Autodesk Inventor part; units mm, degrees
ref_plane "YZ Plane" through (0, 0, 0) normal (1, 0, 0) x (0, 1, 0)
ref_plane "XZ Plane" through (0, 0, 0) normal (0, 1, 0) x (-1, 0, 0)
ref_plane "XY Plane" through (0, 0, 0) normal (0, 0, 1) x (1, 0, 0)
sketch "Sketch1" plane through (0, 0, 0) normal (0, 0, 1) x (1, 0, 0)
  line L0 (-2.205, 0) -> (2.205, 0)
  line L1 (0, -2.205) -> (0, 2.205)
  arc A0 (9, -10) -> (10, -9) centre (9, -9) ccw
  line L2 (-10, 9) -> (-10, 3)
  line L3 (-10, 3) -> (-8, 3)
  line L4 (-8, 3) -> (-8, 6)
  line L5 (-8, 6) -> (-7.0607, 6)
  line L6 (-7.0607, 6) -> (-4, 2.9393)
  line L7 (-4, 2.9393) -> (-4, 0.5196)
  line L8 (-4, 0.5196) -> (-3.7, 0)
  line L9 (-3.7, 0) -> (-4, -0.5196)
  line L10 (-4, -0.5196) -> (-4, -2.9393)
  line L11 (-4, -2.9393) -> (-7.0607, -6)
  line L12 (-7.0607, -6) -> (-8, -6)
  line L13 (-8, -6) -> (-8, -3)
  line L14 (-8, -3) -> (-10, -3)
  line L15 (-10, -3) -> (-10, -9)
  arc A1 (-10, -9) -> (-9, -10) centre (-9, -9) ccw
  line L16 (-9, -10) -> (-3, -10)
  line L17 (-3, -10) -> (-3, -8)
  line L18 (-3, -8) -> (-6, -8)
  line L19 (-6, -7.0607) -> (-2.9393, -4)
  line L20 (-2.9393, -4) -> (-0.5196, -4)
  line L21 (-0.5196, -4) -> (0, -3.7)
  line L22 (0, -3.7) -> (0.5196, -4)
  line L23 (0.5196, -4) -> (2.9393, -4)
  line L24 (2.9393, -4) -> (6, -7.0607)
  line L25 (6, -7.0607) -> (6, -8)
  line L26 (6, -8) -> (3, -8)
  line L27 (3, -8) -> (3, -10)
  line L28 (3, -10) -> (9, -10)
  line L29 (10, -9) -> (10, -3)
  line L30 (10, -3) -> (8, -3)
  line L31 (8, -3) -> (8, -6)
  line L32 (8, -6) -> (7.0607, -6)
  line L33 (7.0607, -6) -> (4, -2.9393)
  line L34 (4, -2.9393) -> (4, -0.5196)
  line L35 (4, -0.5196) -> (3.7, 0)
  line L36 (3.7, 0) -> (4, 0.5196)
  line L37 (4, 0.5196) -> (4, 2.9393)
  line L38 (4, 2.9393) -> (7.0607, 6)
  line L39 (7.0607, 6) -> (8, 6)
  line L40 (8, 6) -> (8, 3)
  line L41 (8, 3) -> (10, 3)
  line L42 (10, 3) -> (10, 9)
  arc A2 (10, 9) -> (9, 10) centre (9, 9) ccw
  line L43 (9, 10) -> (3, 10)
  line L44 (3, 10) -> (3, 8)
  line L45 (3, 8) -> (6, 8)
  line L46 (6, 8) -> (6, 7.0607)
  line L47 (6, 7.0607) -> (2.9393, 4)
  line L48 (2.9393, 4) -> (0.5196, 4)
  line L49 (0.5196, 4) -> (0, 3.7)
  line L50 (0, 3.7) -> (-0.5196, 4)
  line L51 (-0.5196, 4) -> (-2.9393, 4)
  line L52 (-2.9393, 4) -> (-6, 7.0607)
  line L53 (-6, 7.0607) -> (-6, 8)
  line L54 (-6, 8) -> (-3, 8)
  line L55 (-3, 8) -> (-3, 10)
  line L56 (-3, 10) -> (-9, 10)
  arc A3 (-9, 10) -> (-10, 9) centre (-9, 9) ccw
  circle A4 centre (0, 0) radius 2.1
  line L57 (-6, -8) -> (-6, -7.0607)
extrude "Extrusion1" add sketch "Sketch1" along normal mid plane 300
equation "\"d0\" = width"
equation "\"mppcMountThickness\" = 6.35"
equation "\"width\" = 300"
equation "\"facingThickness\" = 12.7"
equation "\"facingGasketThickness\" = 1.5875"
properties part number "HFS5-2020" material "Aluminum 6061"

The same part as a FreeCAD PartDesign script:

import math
import FreeCAD as App
import Part
import Sketcher

V = App.Vector
Q = App.Units.Quantity

doc = App.newDocument("Part")
params = doc.addObject("Spreadsheet::Sheet", "Params")
for row, (alias, value) in enumerate([
    ("sketch1_radius", "1 mm"),
    ("sketch1_diameter", "4.2 mm"),
    ("sketch1_width", "6 mm"),
    ("sketch1_width2", "2 mm"),
    ("sketch1_width3", "3 mm"),
    ("pad1_length", "300 mm"),
], start=1):
    params.set(f"A{row}", alias)
    params.set(f"B{row}", "=" + value)
    params.setAlias(f"B{row}", alias)

body = doc.addObject("PartDesign::Body", "Body")

# Sketch on XY plane
sketch1 = doc.addObject("Sketcher::SketchObject", "Sketch")
body.addObject(sketch1)
sketch1.AttachmentSupport = (doc.XY_Plane, [""])
sketch1.MapMode = "FlatFace"
sketch1.addGeometry(Part.LineSegment(V(3, -10, 0), V(9, -10, 0)), False)
sketch1.addGeometry(Part.ArcOfCircle(Part.Circle(V(9, -9, 0), V(0, 0, 1), 1), math.radians(-90), math.radians(0)), False)
sketch1.addGeometry(Part.LineSegment(V(10, -9, 0), V(10, -3, 0)), False)
sketch1.addGeometry(Part.LineSegment(V(10, -3, 0), V(8, -3, 0)), False)
sketch1.addGeometry(Part.LineSegment(V(8, -3, 0), V(8, -6, 0)), False)
sketch1.addGeometry(Part.LineSegment(V(8, -6, 0), V(7.1, -6, 0)), False)
sketch1.addGeometry(Part.LineSegment(V(7.1, -6, 0), V(4, -2.9, 0)), False)
sketch1.addGeometry(Part.LineSegment(V(4, -2.9, 0), V(4, -0.5, 0)), False)
sketch1.addGeometry(Part.LineSegment(V(4, -0.5, 0), V(3.7, 0, 0)), False)
sketch1.addGeometry(Part.LineSegment(V(3.7, 0, 0), V(4, 0.5, 0)), False)
sketch1.addGeometry(Part.LineSegment(V(4, 0.5, 0), V(4, 2.9, 0)), False)
sketch1.addGeometry(Part.LineSegment(V(4, 2.9, 0), V(7.1, 6, 0)), False)
sketch1.addGeometry(Part.LineSegment(V(7.1, 6, 0), V(8, 6, 0)), False)
sketch1.addGeometry(Part.LineSegment(V(8, 6, 0), V(8, 3, 0)), False)
sketch1.addGeometry(Part.LineSegment(V(8, 3, 0), V(10, 3, 0)), False)
sketch1.addGeometry(Part.LineSegment(V(10, 3, 0), V(10, 9, 0)), False)
sketch1.addGeometry(Part.ArcOfCircle(Part.Circle(V(9, 9, 0), V(0, 0, 1), 1), math.radians(0), math.radians(90)), False)
sketch1.addGeometry(Part.LineSegment(V(9, 10, 0), V(3, 10, 0)), False)
sketch1.addGeometry(Part.LineSegment(V(3, 10, 0), V(3, 8, 0)), False)
sketch1.addGeometry(Part.LineSegment(V(3, 8, 0), V(6, 8, 0)), False)
sketch1.addGeometry(Part.LineSegment(V(6, 8, 0), V(6, 7.1, 0)), False)
sketch1.addGeometry(Part.LineSegment(V(6, 7.1, 0), V(2.9, 4, 0)), False)
sketch1.addGeometry(Part.LineSegment(V(2.9, 4, 0), V(0.5, 4, 0)), False)
sketch1.addGeometry(Part.LineSegment(V(0.5, 4, 0), V(0, 3.7, 0)), False)
sketch1.addGeometry(Part.LineSegment(V(0, 3.7, 0), V(-0.5, 4, 0)), False)
sketch1.addGeometry(Part.LineSegment(V(-0.5, 4, 0), V(-2.9, 4, 0)), False)
sketch1.addGeometry(Part.LineSegment(V(-2.9, 4, 0), V(-6, 7.1, 0)), False)
sketch1.addGeometry(Part.LineSegment(V(-6, 7.1, 0), V(-6, 8, 0)), False)
sketch1.addGeometry(Part.LineSegment(V(-6, 8, 0), V(-3, 8, 0)), False)
sketch1.addGeometry(Part.LineSegment(V(-3, 8, 0), V(-3, 10, 0)), False)
sketch1.addGeometry(Part.LineSegment(V(-3, 10, 0), V(-9, 10, 0)), False)
sketch1.addGeometry(Part.ArcOfCircle(Part.Circle(V(-9, 9, 0), V(0, 0, 1), 1), math.radians(90), math.radians(180)), False)
sketch1.addGeometry(Part.LineSegment(V(-10, 9, 0), V(-10, 3, 0)), False)
sketch1.addGeometry(Part.LineSegment(V(-10, 3, 0), V(-8, 3, 0)), False)
sketch1.addGeometry(Part.LineSegment(V(-8, 3, 0), V(-8, 6, 0)), False)
sketch1.addGeometry(Part.LineSegment(V(-8, 6, 0), V(-7.1, 6, 0)), False)
sketch1.addGeometry(Part.LineSegment(V(-7.1, 6, 0), V(-4, 2.9, 0)), False)
sketch1.addGeometry(Part.LineSegment(V(-4, 2.9, 0), V(-4, 0.5, 0)), False)
sketch1.addGeometry(Part.LineSegment(V(-4, 0.5, 0), V(-3.7, 0, 0)), False)
sketch1.addGeometry(Part.LineSegment(V(-3.7, 0, 0), V(-4, -0.5, 0)), False)
sketch1.addGeometry(Part.LineSegment(V(-4, -0.5, 0), V(-4, -2.9, 0)), False)
sketch1.addGeometry(Part.LineSegment(V(-4, -2.9, 0), V(-7.1, -6, 0)), False)
sketch1.addGeometry(Part.LineSegment(V(-7.1, -6, 0), V(-8, -6, 0)), False)
sketch1.addGeometry(Part.LineSegment(V(-8, -6, 0), V(-8, -3, 0)), False)
sketch1.addGeometry(Part.LineSegment(V(-8, -3, 0), V(-10, -3, 0)), False)
sketch1.addGeometry(Part.LineSegment(V(-10, -3, 0), V(-10, -9, 0)), False)
sketch1.addGeometry(Part.ArcOfCircle(Part.Circle(V(-9, -9, 0), V(0, 0, 1), 1), math.radians(180), math.radians(270)), False)
sketch1.addGeometry(Part.LineSegment(V(-9, -10, 0), V(-3, -10, 0)), False)
sketch1.addGeometry(Part.LineSegment(V(-3, -10, 0), V(-3, -8, 0)), False)
sketch1.addGeometry(Part.LineSegment(V(-3, -8, 0), V(-6, -8, 0)), False)
sketch1.addGeometry(Part.LineSegment(V(-6, -8, 0), V(-6, -7.1, 0)), False)
sketch1.addGeometry(Part.LineSegment(V(-6, -7.1, 0), V(-2.9, -4, 0)), False)
sketch1.addGeometry(Part.LineSegment(V(-2.9, -4, 0), V(-0.5, -4, 0)), False)
sketch1.addGeometry(Part.LineSegment(V(-0.5, -4, 0), V(0, -3.7, 0)), False)
sketch1.addGeometry(Part.LineSegment(V(0, -3.7, 0), V(0.5, -4, 0)), False)
sketch1.addGeometry(Part.LineSegment(V(0.5, -4, 0), V(2.9, -4, 0)), False)
sketch1.addGeometry(Part.LineSegment(V(2.9, -4, 0), V(6, -7.1, 0)), False)
sketch1.addGeometry(Part.LineSegment(V(6, -7.1, 0), V(6, -8, 0)), False)
sketch1.addGeometry(Part.LineSegment(V(6, -8, 0), V(3, -8, 0)), False)
sketch1.addGeometry(Part.LineSegment(V(3, -8, 0), V(3, -10, 0)), False)
sketch1.addGeometry(Part.Circle(V(0, 0, 0), V(0, 0, 1), 2.1), False)
sketch1.addConstraint(Sketcher.Constraint("Tangent", 0, 2, 1, 1))
sketch1.addConstraint(Sketcher.Constraint("Tangent", 1, 2, 2, 1))
sketch1.addConstraint(Sketcher.Constraint("Coincident", 2, 2, 3, 1))
sketch1.addConstraint(Sketcher.Constraint("Coincident", 3, 2, 4, 1))
sketch1.addConstraint(Sketcher.Constraint("Coincident", 4, 2, 5, 1))
sketch1.addConstraint(Sketcher.Constraint("Coincident", 5, 2, 6, 1))
sketch1.addConstraint(Sketcher.Constraint("Coincident", 6, 2, 7, 1))
sketch1.addConstraint(Sketcher.Constraint("Coincident", 7, 2, 8, 1))
sketch1.addConstraint(Sketcher.Constraint("Coincident", 8, 2, 9, 1))
sketch1.addConstraint(Sketcher.Constraint("Coincident", 9, 2, 10, 1))
sketch1.addConstraint(Sketcher.Constraint("Coincident", 10, 2, 11, 1))
sketch1.addConstraint(Sketcher.Constraint("Coincident", 11, 2, 12, 1))
sketch1.addConstraint(Sketcher.Constraint("Coincident", 12, 2, 13, 1))
sketch1.addConstraint(Sketcher.Constraint("Coincident", 13, 2, 14, 1))
sketch1.addConstraint(Sketcher.Constraint("Coincident", 14, 2, 15, 1))
sketch1.addConstraint(Sketcher.Constraint("Tangent", 15, 2, 16, 1))
sketch1.addConstraint(Sketcher.Constraint("Tangent", 16, 2, 17, 1))
sketch1.addConstraint(Sketcher.Constraint("Coincident", 17, 2, 18, 1))
sketch1.addConstraint(Sketcher.Constraint("Coincident", 18, 2, 19, 1))
sketch1.addConstraint(Sketcher.Constraint("Coincident", 19, 2, 20, 1))
sketch1.addConstraint(Sketcher.Constraint("Coincident", 20, 2, 21, 1))
sketch1.addConstraint(Sketcher.Constraint("Coincident", 21, 2, 22, 1))
sketch1.addConstraint(Sketcher.Constraint("Coincident", 22, 2, 23, 1))
sketch1.addConstraint(Sketcher.Constraint("Coincident", 23, 2, 24, 1))
sketch1.addConstraint(Sketcher.Constraint("Coincident", 24, 2, 25, 1))
sketch1.addConstraint(Sketcher.Constraint("Coincident", 25, 2, 26, 1))
sketch1.addConstraint(Sketcher.Constraint("Coincident", 26, 2, 27, 1))
sketch1.addConstraint(Sketcher.Constraint("Coincident", 27, 2, 28, 1))
sketch1.addConstraint(Sketcher.Constraint("Coincident", 28, 2, 29, 1))
sketch1.addConstraint(Sketcher.Constraint("Coincident", 29, 2, 30, 1))
sketch1.addConstraint(Sketcher.Constraint("Tangent", 30, 2, 31, 1))
sketch1.addConstraint(Sketcher.Constraint("Tangent", 31, 2, 32, 1))
sketch1.addConstraint(Sketcher.Constraint("Coincident", 32, 2, 33, 1))
sketch1.addConstraint(Sketcher.Constraint("Coincident", 33, 2, 34, 1))
sketch1.addConstraint(Sketcher.Constraint("Coincident", 34, 2, 35, 1))
sketch1.addConstraint(Sketcher.Constraint("Coincident", 35, 2, 36, 1))
sketch1.addConstraint(Sketcher.Constraint("Coincident", 36, 2, 37, 1))
sketch1.addConstraint(Sketcher.Constraint("Coincident", 37, 2, 38, 1))
sketch1.addConstraint(Sketcher.Constraint("Coincident", 38, 2, 39, 1))
sketch1.addConstraint(Sketcher.Constraint("Coincident", 39, 2, 40, 1))
sketch1.addConstraint(Sketcher.Constraint("Coincident", 40, 2, 41, 1))
sketch1.addConstraint(Sketcher.Constraint("Coincident", 41, 2, 42, 1))
sketch1.addConstraint(Sketcher.Constraint("Coincident", 42, 2, 43, 1))
sketch1.addConstraint(Sketcher.Constraint("Coincident", 43, 2, 44, 1))
sketch1.addConstraint(Sketcher.Constraint("Coincident", 44, 2, 45, 1))
sketch1.addConstraint(Sketcher.Constraint("Tangent", 45, 2, 46, 1))
sketch1.addConstraint(Sketcher.Constraint("Tangent", 46, 2, 47, 1))
sketch1.addConstraint(Sketcher.Constraint("Coincident", 47, 2, 48, 1))
sketch1.addConstraint(Sketcher.Constraint("Coincident", 48, 2, 49, 1))
sketch1.addConstraint(Sketcher.Constraint("Coincident", 49, 2, 50, 1))
sketch1.addConstraint(Sketcher.Constraint("Coincident", 50, 2, 51, 1))
sketch1.addConstraint(Sketcher.Constraint("Coincident", 51, 2, 52, 1))
sketch1.addConstraint(Sketcher.Constraint("Coincident", 52, 2, 53, 1))
sketch1.addConstraint(Sketcher.Constraint("Coincident", 53, 2, 54, 1))
sketch1.addConstraint(Sketcher.Constraint("Coincident", 54, 2, 55, 1))
sketch1.addConstraint(Sketcher.Constraint("Coincident", 55, 2, 56, 1))
sketch1.addConstraint(Sketcher.Constraint("Coincident", 56, 2, 57, 1))
sketch1.addConstraint(Sketcher.Constraint("Coincident", 57, 2, 58, 1))
sketch1.addConstraint(Sketcher.Constraint("Coincident", 58, 2, 59, 1))
sketch1.addConstraint(Sketcher.Constraint("Coincident", 59, 2, 0, 1))
sketch1.addConstraint(Sketcher.Constraint("Horizontal", 0))
sketch1.addConstraint(Sketcher.Constraint("Vertical", 2))
sketch1.addConstraint(Sketcher.Constraint("Horizontal", 3))
sketch1.addConstraint(Sketcher.Constraint("Vertical", 4))
sketch1.addConstraint(Sketcher.Constraint("Horizontal", 5))
sketch1.addConstraint(Sketcher.Constraint("Vertical", 7))
sketch1.addConstraint(Sketcher.Constraint("Vertical", 10))
sketch1.addConstraint(Sketcher.Constraint("Horizontal", 12))
sketch1.addConstraint(Sketcher.Constraint("Vertical", 13))
sketch1.addConstraint(Sketcher.Constraint("Horizontal", 14))
sketch1.addConstraint(Sketcher.Constraint("Vertical", 15))
sketch1.addConstraint(Sketcher.Constraint("Horizontal", 17))
sketch1.addConstraint(Sketcher.Constraint("Vertical", 18))
sketch1.addConstraint(Sketcher.Constraint("Horizontal", 19))
sketch1.addConstraint(Sketcher.Constraint("Vertical", 20))
sketch1.addConstraint(Sketcher.Constraint("Horizontal", 22))
sketch1.addConstraint(Sketcher.Constraint("Horizontal", 25))
sketch1.addConstraint(Sketcher.Constraint("Vertical", 27))
sketch1.addConstraint(Sketcher.Constraint("Horizontal", 28))
sketch1.addConstraint(Sketcher.Constraint("Vertical", 29))
sketch1.addConstraint(Sketcher.Constraint("Horizontal", 30))
sketch1.addConstraint(Sketcher.Constraint("Vertical", 32))
sketch1.addConstraint(Sketcher.Constraint("Horizontal", 33))
sketch1.addConstraint(Sketcher.Constraint("Vertical", 34))
sketch1.addConstraint(Sketcher.Constraint("Horizontal", 35))
sketch1.addConstraint(Sketcher.Constraint("Vertical", 37))
sketch1.addConstraint(Sketcher.Constraint("Vertical", 40))
sketch1.addConstraint(Sketcher.Constraint("Horizontal", 42))
sketch1.addConstraint(Sketcher.Constraint("Vertical", 43))
sketch1.addConstraint(Sketcher.Constraint("Horizontal", 44))
sketch1.addConstraint(Sketcher.Constraint("Vertical", 45))
sketch1.addConstraint(Sketcher.Constraint("Horizontal", 47))
sketch1.addConstraint(Sketcher.Constraint("Vertical", 48))
sketch1.addConstraint(Sketcher.Constraint("Horizontal", 49))
sketch1.addConstraint(Sketcher.Constraint("Vertical", 50))
sketch1.addConstraint(Sketcher.Constraint("Horizontal", 52))
sketch1.addConstraint(Sketcher.Constraint("Horizontal", 55))
sketch1.addConstraint(Sketcher.Constraint("Vertical", 57))
sketch1.addConstraint(Sketcher.Constraint("Horizontal", 58))
sketch1.addConstraint(Sketcher.Constraint("Vertical", 59))
sketch1.addConstraint(Sketcher.Constraint("Coincident", 60, 3, -1, 1))
sketch1.addConstraint(Sketcher.Constraint("Equal", 1, 16))
sketch1.addConstraint(Sketcher.Constraint("Equal", 16, 31))
sketch1.addConstraint(Sketcher.Constraint("Equal", 31, 46))
sketch1.addConstraint(Sketcher.Constraint("Symmetric", 1, 3, 31, 3, -1, 1))
sketch1.addConstraint(Sketcher.Constraint("Symmetric", 16, 3, 46, 3, -1, 1))
sketch1.addConstraint(Sketcher.Constraint("Symmetric", 3, 2, 33, 2, -1, 1))
sketch1.addConstraint(Sketcher.Constraint("Symmetric", 5, 2, 35, 2, -1, 1))
sketch1.addConstraint(Sketcher.Constraint("Symmetric", 6, 2, 36, 2, -1, 1))
sketch1.addConstraint(Sketcher.Constraint("Symmetric", 8, 2, 38, 2, -1, 1))
sketch1.addConstraint(Sketcher.Constraint("Symmetric", 9, 2, 39, 2, -1, 1))
sketch1.addConstraint(Sketcher.Constraint("Symmetric", 11, 2, 41, 2, -1, 1))
sketch1.addConstraint(Sketcher.Constraint("Symmetric", 13, 2, 43, 2, -1, 1))
sketch1.addConstraint(Sketcher.Constraint("Symmetric", 18, 2, 48, 2, -1, 1))
sketch1.addConstraint(Sketcher.Constraint("Symmetric", 20, 2, 50, 2, -1, 1))
sketch1.addConstraint(Sketcher.Constraint("Symmetric", 21, 2, 51, 2, -1, 1))
sketch1.addConstraint(Sketcher.Constraint("Symmetric", 23, 2, 53, 2, -1, 1))
sketch1.addConstraint(Sketcher.Constraint("Symmetric", 24, 2, 54, 2, -1, 1))
sketch1.addConstraint(Sketcher.Constraint("Symmetric", 26, 2, 56, 2, -1, 1))
sketch1.addConstraint(Sketcher.Constraint("Symmetric", 28, 2, 58, 2, -1, 1))
sketch1.addConstraint(Sketcher.Constraint("Symmetric", 16, 3, 31, 3, -2))
sketch1.addConstraint(Sketcher.Constraint("Symmetric", 22, 2, 24, 2, -2))
sketch1.addConstraint(Sketcher.Constraint("Symmetric", 20, 2, 26, 2, -2))
sketch1.addConstraint(Sketcher.Constraint("Symmetric", 18, 2, 28, 2, -2))
sketch1.addConstraint(Sketcher.Constraint("Symmetric", 13, 2, 33, 2, -2))
sketch1.addConstraint(Sketcher.Constraint("Symmetric", 11, 2, 35, 2, -2))
sketch1.addConstraint(Sketcher.Constraint("Symmetric", 10, 2, 36, 2, -2))
sketch1.addConstraint(Sketcher.Constraint("PointOnObject", 8, 2, -1))
sketch1.addConstraint(Sketcher.Constraint("PointOnObject", 23, 2, -2))
sketch1.addConstraint(Sketcher.Constraint("Perpendicular", 6, 11))
sketch1.addConstraint(Sketcher.Constraint("Parallel", 11, 21))
sketch1.addConstraint(Sketcher.Constraint("Perpendicular", 8, 23))
sketch1.addConstraint(Sketcher.Constraint("Perpendicular", 9, 24))
sketch1.addConstraint(Sketcher.Constraint("Perpendicular", 21, 26))
sketch1.addConstraint(Sketcher.Constraint("Perpendicular", 23, 38))
sketch1.addConstraint(Sketcher.Constraint("Perpendicular", 36, 41))
sketch1.addConstraint(Sketcher.Constraint("Perpendicular", 38, 53))
sketch1.addConstraint(Sketcher.Constraint("Perpendicular", 51, 56))
sketch1.addConstraint(Sketcher.Constraint("Equal", 47, 2))
sketch1.addConstraint(Sketcher.Constraint("Equal", 58, 4))
sketch1.addConstraint(Sketcher.Constraint("Equal", 55, 7))
sketch1.addConstraint(Sketcher.Constraint("Equal", 44, 18))
sketch1.addConstraint(Sketcher.Constraint("Equal", 42, 20))
sketch1.addConstraint(Sketcher.Constraint("Equal", 11, 21))
sketch1.addConstraint(Sketcher.Constraint("Equal", 9, 23))
sketch1.addConstraint(Sketcher.Constraint("Radius", 1, Q("1 mm")))
sketch1.addConstraint(Sketcher.Constraint("Diameter", 60, Q("4.2 mm")))
sketch1.addConstraint(Sketcher.Constraint("DistanceX", 0, 1, 0, 2, Q("6 mm")))
sketch1.addConstraint(Sketcher.Constraint("DistanceX", 3, 2, 3, 1, Q("2 mm")))
sketch1.addConstraint(Sketcher.Constraint("DistanceX", 19, 1, 19, 2, Q("3 mm")))
sketch1.addConstraint(Sketcher.Constraint("Angle", 8, Q("120.0007 deg")))
sketch1.addConstraint(Sketcher.Constraint("DistanceX", -1, 1, 1, 3, Q("9 mm")))
sketch1.addConstraint(Sketcher.Constraint("DistanceX", -1, 1, 6, 2, Q("4 mm")))
sketch1.addConstraint(Sketcher.Constraint("Distance", 8, Q("0.6 mm")))
sketch1.addConstraint(Sketcher.Constraint("DistanceX", 5, 2, 5, 1, Q("0.9393 mm")))
sketch1.setExpression("Constraints[145]", "Params.sketch1_radius")
sketch1.setExpression("Constraints[146]", "Params.sketch1_diameter")
sketch1.setExpression("Constraints[147]", "Params.sketch1_width")
sketch1.setExpression("Constraints[148]", "Params.sketch1_width2")
sketch1.setExpression("Constraints[149]", "Params.sketch1_width3")
pad1 = doc.addObject("PartDesign::Pad", "Pad")
body.addObject(pad1)
pad1.Profile = sketch1
pad1.setExpression("Length", "Params.pad1_length")
pad1.Midplane = True

doc.recompute()
